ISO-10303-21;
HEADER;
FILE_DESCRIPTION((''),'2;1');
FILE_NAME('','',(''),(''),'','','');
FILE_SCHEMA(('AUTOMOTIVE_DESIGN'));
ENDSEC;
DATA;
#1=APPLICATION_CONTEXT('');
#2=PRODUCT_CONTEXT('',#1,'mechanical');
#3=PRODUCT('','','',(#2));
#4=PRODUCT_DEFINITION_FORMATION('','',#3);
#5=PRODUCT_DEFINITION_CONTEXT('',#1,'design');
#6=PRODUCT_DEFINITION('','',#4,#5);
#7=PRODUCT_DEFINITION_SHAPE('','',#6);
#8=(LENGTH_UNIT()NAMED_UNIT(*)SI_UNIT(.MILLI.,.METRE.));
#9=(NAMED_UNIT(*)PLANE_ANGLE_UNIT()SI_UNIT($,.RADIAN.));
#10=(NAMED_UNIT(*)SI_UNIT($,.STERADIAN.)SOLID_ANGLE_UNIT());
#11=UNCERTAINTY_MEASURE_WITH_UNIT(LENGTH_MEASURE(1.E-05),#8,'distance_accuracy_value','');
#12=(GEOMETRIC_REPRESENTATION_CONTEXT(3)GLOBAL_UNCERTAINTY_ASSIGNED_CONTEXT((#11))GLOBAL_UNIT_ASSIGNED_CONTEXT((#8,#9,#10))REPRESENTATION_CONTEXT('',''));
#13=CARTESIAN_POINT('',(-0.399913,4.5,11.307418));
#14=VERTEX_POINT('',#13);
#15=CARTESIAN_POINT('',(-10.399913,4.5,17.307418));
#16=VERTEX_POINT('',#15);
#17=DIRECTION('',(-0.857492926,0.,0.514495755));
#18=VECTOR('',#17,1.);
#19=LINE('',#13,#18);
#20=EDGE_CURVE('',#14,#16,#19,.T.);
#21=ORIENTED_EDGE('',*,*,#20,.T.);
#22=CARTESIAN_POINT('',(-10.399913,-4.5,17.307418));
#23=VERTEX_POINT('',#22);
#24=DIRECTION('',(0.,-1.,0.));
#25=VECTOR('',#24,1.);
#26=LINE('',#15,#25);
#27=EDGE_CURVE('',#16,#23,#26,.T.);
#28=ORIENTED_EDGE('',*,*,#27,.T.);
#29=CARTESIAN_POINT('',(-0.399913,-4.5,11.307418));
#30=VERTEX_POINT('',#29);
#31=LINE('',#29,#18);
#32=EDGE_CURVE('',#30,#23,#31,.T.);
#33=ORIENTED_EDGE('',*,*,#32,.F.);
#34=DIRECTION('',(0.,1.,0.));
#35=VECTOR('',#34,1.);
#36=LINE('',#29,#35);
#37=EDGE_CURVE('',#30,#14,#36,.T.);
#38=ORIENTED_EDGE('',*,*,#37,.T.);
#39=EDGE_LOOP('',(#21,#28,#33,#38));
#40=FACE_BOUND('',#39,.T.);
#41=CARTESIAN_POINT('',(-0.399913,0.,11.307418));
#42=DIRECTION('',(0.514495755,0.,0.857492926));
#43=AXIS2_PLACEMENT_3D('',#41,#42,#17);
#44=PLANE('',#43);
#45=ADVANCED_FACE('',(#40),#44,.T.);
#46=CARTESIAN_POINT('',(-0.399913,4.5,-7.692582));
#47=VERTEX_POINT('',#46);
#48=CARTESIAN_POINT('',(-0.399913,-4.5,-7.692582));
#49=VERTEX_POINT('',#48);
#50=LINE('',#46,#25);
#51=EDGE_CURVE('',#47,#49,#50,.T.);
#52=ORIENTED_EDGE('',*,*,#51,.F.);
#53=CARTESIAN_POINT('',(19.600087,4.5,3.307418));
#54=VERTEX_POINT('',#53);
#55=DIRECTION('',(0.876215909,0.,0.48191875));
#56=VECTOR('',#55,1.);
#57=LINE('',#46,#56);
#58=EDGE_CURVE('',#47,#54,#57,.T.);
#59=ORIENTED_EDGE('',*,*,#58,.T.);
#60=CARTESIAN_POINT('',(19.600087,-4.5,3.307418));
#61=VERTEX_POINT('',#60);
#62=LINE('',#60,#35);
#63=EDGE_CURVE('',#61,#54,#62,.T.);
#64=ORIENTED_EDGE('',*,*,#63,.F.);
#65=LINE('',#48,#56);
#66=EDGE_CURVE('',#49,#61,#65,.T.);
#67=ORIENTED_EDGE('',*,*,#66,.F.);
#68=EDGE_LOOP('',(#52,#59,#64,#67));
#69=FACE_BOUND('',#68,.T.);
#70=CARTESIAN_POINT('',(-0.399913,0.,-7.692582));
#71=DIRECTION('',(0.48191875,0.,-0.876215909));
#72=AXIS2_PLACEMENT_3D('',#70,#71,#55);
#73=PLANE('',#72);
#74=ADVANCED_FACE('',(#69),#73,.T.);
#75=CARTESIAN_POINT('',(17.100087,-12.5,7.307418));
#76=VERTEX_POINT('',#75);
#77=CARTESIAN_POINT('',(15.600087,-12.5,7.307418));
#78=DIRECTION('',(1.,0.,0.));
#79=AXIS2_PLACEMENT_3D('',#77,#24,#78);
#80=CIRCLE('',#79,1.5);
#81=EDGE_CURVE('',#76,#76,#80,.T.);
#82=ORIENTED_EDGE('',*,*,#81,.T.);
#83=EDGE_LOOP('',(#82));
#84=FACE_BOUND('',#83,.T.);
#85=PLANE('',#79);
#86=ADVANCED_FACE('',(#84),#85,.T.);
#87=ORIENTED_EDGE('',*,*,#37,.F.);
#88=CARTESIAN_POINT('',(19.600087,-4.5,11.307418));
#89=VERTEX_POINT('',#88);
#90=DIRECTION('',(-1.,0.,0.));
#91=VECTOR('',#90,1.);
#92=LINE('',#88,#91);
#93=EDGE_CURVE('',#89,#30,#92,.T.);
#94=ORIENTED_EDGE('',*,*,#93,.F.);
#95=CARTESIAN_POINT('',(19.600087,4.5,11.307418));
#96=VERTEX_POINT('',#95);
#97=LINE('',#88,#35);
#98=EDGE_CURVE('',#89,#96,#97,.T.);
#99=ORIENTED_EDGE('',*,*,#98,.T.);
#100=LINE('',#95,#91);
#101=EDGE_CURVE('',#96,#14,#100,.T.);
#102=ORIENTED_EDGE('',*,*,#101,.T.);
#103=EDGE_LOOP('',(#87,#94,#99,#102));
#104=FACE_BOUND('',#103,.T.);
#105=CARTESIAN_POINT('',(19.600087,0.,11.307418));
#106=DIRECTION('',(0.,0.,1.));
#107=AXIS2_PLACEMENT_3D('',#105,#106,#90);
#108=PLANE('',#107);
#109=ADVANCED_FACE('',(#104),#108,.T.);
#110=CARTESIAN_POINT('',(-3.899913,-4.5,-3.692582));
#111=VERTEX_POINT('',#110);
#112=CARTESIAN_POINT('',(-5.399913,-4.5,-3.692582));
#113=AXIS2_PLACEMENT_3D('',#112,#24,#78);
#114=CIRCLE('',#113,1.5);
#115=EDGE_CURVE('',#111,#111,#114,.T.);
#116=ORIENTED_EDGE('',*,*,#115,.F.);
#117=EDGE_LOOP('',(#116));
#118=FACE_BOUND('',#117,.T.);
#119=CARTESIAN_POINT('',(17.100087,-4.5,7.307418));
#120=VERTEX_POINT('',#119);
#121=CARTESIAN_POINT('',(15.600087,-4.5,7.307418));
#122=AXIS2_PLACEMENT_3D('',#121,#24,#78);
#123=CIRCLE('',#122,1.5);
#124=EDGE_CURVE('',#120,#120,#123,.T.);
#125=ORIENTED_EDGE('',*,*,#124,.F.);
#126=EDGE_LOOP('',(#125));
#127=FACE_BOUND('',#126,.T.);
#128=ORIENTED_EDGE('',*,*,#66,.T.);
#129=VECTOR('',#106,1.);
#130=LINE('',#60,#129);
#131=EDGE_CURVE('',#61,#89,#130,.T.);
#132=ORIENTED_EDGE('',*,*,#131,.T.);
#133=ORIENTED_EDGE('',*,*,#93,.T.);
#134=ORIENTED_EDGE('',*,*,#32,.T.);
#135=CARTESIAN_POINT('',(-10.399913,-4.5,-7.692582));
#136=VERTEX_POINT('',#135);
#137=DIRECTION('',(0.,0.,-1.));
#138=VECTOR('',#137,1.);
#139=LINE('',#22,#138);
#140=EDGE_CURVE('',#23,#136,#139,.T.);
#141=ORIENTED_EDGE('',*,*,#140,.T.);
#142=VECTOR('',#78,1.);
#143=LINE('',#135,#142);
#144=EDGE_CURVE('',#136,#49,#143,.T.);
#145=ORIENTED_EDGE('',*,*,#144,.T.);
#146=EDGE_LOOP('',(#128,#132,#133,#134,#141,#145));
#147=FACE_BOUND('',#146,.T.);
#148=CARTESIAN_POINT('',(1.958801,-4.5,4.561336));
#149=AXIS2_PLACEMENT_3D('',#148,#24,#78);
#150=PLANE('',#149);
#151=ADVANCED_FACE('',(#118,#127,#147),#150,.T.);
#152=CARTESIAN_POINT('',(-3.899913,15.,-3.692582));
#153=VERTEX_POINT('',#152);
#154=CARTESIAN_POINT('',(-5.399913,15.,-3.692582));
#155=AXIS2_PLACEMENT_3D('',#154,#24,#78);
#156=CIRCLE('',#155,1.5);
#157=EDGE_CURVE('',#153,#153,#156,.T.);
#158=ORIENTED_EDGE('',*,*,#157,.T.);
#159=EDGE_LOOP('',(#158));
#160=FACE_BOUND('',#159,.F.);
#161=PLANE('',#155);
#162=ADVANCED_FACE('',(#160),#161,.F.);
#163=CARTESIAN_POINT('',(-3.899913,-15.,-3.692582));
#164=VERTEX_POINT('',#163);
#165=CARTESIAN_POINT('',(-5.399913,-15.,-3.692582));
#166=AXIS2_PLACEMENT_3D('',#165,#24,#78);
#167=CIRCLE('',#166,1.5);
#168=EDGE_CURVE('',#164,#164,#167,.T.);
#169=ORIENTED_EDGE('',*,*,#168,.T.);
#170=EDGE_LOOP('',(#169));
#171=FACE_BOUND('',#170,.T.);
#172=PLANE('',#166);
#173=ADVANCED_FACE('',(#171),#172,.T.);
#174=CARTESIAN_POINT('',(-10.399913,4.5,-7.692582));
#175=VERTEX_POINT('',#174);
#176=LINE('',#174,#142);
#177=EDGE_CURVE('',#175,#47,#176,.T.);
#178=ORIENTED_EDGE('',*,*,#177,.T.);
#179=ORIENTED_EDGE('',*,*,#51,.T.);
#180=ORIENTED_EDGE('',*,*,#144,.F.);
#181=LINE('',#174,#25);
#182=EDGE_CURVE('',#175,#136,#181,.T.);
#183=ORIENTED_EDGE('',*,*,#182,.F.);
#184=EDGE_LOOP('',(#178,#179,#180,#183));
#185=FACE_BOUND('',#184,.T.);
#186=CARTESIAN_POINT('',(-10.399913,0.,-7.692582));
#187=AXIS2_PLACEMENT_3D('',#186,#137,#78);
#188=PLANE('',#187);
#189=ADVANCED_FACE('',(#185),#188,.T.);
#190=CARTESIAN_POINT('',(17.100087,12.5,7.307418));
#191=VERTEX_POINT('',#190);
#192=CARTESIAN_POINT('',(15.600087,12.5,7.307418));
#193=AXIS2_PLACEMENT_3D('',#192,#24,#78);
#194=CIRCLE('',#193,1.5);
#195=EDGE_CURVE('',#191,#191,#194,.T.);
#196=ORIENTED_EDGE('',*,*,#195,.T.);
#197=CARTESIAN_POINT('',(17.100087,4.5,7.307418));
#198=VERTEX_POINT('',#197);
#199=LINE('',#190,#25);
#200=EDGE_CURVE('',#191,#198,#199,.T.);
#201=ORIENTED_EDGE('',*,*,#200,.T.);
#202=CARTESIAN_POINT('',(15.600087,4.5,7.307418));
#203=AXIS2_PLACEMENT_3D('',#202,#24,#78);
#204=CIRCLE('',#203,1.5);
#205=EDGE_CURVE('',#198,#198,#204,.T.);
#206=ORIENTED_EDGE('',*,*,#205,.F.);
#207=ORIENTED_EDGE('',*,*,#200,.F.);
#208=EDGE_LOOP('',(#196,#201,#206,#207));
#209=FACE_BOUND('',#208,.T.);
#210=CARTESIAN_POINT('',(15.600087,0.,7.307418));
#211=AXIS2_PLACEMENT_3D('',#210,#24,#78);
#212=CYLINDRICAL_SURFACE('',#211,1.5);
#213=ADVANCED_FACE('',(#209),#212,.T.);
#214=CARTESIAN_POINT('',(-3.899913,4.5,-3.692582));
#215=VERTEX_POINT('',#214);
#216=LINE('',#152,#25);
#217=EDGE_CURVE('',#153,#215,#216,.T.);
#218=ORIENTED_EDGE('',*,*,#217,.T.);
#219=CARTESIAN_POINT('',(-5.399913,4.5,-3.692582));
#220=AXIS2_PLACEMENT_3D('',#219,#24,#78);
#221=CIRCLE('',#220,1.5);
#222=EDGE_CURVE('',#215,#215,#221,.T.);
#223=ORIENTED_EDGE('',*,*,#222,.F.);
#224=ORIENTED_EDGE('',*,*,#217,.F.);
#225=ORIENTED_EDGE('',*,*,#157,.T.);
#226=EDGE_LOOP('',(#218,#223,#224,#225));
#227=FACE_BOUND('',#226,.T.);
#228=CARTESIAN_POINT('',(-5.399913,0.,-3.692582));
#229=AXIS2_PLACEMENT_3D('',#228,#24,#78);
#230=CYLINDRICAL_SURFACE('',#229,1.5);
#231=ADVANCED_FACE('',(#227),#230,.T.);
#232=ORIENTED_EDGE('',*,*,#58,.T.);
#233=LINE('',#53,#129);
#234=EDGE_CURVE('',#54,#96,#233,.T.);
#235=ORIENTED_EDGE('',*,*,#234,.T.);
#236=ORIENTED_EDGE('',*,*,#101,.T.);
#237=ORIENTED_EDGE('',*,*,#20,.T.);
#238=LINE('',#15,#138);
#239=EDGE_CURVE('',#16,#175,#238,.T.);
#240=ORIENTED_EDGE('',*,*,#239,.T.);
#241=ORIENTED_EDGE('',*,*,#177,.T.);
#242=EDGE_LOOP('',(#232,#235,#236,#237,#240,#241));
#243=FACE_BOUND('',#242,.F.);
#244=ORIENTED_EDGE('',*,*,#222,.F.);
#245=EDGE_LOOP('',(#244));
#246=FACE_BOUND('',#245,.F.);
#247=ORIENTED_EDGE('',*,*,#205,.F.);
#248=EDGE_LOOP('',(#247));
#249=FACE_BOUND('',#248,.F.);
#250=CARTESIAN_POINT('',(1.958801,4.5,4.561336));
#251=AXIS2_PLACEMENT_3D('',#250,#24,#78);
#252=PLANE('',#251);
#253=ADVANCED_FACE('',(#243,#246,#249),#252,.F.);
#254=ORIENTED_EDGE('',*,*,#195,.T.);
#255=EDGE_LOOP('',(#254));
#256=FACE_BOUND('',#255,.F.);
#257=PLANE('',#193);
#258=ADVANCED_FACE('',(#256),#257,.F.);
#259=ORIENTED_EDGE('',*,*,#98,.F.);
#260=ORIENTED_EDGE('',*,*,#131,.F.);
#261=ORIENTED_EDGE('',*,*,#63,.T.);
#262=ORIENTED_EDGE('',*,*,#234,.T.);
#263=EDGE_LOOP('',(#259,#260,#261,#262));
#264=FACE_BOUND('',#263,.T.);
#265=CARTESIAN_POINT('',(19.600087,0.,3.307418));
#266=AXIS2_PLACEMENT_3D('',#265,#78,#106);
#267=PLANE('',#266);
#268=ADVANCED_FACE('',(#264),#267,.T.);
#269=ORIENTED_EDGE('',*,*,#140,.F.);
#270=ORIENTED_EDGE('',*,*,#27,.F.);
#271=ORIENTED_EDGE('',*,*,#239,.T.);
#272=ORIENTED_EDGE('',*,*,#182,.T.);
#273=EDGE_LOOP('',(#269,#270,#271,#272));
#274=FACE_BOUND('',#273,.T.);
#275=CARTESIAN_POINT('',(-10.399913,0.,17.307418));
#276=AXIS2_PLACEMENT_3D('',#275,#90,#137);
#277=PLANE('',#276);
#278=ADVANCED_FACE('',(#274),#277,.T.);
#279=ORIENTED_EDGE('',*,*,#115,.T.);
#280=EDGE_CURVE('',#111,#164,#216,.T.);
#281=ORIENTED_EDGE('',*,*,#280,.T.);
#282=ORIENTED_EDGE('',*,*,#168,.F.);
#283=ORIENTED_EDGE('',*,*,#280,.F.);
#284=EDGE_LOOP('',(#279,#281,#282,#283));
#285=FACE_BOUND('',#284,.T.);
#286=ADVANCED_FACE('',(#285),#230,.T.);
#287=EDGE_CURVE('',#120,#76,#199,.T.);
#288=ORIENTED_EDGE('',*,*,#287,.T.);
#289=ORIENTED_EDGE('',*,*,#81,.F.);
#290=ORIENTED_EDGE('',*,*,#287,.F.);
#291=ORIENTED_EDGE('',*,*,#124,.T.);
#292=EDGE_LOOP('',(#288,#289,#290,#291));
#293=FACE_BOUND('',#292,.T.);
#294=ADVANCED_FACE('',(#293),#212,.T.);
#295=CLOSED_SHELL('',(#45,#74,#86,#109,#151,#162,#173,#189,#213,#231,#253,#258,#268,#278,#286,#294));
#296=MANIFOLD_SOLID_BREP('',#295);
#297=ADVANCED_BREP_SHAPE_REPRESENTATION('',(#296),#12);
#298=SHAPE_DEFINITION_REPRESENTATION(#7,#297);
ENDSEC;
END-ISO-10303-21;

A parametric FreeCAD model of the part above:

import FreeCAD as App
import Part
import Sketcher


def add_polygon(sketch, points):
    """Adds a closed chain of lines whose ends are joined by coincident constraints."""
    first, n = sketch.GeometryCount, len(points)
    for a, b in zip(points, points[1:] + points[:1]):
        sketch.addGeometry(Part.LineSegment(App.Vector(*a, 0), App.Vector(*b, 0)), False)
    for i in range(n):
        sketch.addConstraint(Sketcher.Constraint("Coincident", first + i, 2, first + (i + 1) % n, 1))

doc = App.newDocument("Part")
params = doc.addObject("Spreadsheet::Sheet", "Params")
for row, (alias, value) in enumerate([
    ("sketch1_diameter", "3 mm"),
    ("sketch1_width", "10 mm"),
    ("sketch1_width2", "20 mm"),
    ("sketch1_height", "25 mm"),
    ("sketch1_height2", "8 mm"),
    ("pad1_length", "9 mm"),
    ("sketch2_diameter", "3 mm"),
    ("pad2_length", "30 mm"),
    ("sketch3_diameter", "3 mm"),
    ("pad3_length", "25 mm"),
], start=1):
    params.set(f"A{row}", alias)
    params.set(f"B{row}", "=" + value)
    params.setAlias(f"B{row}", alias)

body = doc.addObject("PartDesign::Body", "Body")

# Sketch on XZ plane
sketch1 = body.newObject("Sketcher::SketchObject", "Sketch")
sketch1.AttachmentSupport = (doc.getObject("XZ_Plane"), [""])
sketch1.MapMode = "FlatFace"
add_polygon(sketch1, [(-0.4, 11.3), (-10.4, 17.3), (-10.4, -7.7), (-0.4, -7.7), (19.6, 3.3), (19.6, 11.3)])  # lines 0-5
sketch1.addGeometry(Part.Circle(App.Vector(-5.4, -3.7, 0), App.Vector(0, 0, 1), 1.5), False)  # 6
sketch1.addGeometry(Part.Circle(App.Vector(15.6, 7.3, 0), App.Vector(0, 0, 1), 1.5), False)  # 7
sketch1.addConstraint([
    Sketcher.Constraint("Vertical", 1),
    Sketcher.Constraint("Horizontal", 2),
    Sketcher.Constraint("Vertical", 4),
    Sketcher.Constraint("Horizontal", 5),
    Sketcher.Constraint("Equal", 6, 7),
    Sketcher.Constraint("Vertical", 2, 2, 5, 2),
    Sketcher.Constraint("Diameter", 6, 3.0),
    Sketcher.Constraint("DistanceX", 2, 1, 2, 2, 10.0),
    Sketcher.Constraint("DistanceX", 5, 2, 5, 1, 20.0),
    Sketcher.Constraint("DistanceY", 1, 2, 1, 1, 25.0),
    Sketcher.Constraint("DistanceY", 4, 1, 4, 2, 8.0),
    Sketcher.Constraint("DistanceX", 6, 3, 7, 3, 21.0),
    Sketcher.Constraint("DistanceY", 6, 3, 7, 3, 11.0),
    Sketcher.Constraint("DistanceX", 0, 2, 6, 3, 5.0),
    Sketcher.Constraint("DistanceY", 6, 3, 0, 2, 21.0),
    Sketcher.Constraint("DistanceY", 3, 2, 7, 3, 4.0),
    Sketcher.Constraint("DistanceY", 6, 3, -1, 1, 3.692582),
    Sketcher.Constraint("DistanceX", 6, 3, -1, 1, 5.399913),
])
sketch1.setExpression("Constraints[12]", "Params.sketch1_diameter")
sketch1.setExpression("Constraints[13]", "Params.sketch1_width")
sketch1.setExpression("Constraints[14]", "Params.sketch1_width2")
sketch1.setExpression("Constraints[15]", "Params.sketch1_height")
sketch1.setExpression("Constraints[16]", "Params.sketch1_height2")
pad1 = body.newObject("PartDesign::Pad", "Pad")
pad1.Profile = sketch1
pad1.setExpression("Length", "Params.pad1_length")
pad1.Midplane = True

# Sketch on XZ plane
sketch2 = body.newObject("Sketcher::SketchObject", "Sketch001")
sketch2.AttachmentSupport = (doc.getObject("XZ_Plane"), [""])
sketch2.MapMode = "FlatFace"
sketch2.addGeometry(Part.Circle(App.Vector(-5.4, -3.7, 0), App.Vector(0, 0, 1), 1.5), False)
sketch2.addConstraint([
    Sketcher.Constraint("Diameter", 0, 3.0),
    Sketcher.Constraint("DistanceY", 0, 3, -1, 1, 3.692582),
    Sketcher.Constraint("DistanceX", 0, 3, -1, 1, 5.399913),
])
sketch2.setExpression("Constraints[0]", "Params.sketch2_diameter")
pad2 = body.newObject("PartDesign::Pad", "Pad001")
pad2.Profile = sketch2
pad2.setExpression("Length", "Params.pad2_length")
pad2.Midplane = True

# Sketch on XZ plane
sketch3 = body.newObject("Sketcher::SketchObject", "Sketch002")
sketch3.AttachmentSupport = (doc.getObject("XZ_Plane"), [""])
sketch3.MapMode = "FlatFace"
sketch3.addGeometry(Part.Circle(App.Vector(15.6, 7.3, 0), App.Vector(0, 0, 1), 1.5), False)
sketch3.addConstraint([
    Sketcher.Constraint("Diameter", 0, 3.0),
    Sketcher.Constraint("DistanceY", -1, 1, 0, 3, 7.307418),
    Sketcher.Constraint("DistanceX", -1, 1, 0, 3, 15.600087),
])
sketch3.setExpression("Constraints[0]", "Params.sketch3_diameter")
pad3 = body.newObject("PartDesign::Pad", "Pad002")
pad3.Profile = sketch3
pad3.setExpression("Length", "Params.pad3_length")
pad3.Midplane = True

doc.recompute()
